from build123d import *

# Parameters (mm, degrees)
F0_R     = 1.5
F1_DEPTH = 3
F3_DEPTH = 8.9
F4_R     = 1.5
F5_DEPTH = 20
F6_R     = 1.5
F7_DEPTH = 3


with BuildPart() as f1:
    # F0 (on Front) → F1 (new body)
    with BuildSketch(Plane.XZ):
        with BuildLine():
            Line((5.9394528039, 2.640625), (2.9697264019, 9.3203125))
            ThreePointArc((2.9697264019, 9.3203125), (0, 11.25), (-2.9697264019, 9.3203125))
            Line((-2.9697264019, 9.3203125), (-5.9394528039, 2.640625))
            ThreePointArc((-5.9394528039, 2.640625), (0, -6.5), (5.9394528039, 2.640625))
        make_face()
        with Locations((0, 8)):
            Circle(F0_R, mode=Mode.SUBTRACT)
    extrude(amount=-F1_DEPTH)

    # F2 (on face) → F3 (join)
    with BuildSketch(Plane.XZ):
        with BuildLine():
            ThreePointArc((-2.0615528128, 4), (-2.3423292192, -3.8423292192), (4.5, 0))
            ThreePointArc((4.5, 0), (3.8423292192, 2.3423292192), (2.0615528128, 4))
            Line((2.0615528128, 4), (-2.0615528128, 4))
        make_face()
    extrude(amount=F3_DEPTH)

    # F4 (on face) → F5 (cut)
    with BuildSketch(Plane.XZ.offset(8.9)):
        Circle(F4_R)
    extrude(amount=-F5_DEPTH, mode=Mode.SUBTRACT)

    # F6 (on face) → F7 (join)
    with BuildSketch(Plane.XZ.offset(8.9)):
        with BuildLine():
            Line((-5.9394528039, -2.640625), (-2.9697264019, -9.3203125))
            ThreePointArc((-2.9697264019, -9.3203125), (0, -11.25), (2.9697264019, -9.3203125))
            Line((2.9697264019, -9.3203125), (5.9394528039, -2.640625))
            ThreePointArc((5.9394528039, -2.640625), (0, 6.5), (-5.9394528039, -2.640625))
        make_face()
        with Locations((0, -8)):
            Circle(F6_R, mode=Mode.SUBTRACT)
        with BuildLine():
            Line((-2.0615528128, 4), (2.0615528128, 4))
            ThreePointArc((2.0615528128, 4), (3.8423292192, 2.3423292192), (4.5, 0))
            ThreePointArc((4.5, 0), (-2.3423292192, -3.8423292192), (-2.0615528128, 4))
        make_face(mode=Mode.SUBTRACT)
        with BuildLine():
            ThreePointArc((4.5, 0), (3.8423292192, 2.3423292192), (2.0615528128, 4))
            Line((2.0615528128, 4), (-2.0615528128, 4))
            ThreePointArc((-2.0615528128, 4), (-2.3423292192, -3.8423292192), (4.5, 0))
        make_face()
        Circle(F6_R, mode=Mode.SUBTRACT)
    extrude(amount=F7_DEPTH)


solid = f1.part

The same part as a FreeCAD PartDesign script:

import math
import FreeCAD as App
import Part
import Sketcher

V = App.Vector

doc = App.newDocument("Part")
params = doc.addObject("Spreadsheet::Sheet", "Params")
for row, (alias, value) in enumerate([
    ("sketch1_diameter", "3 mm"),
    ("sketch1_radius", "6.5 mm"),
    ("sketch1_radius2", "3.25 mm"),
    ("pad1_length", "3 mm"),
    ("sketch2_radius", "4.5 mm"),
    ("pad2_length", "8.9 mm"),
    ("sketch3_diameter", "3 mm"),
    ("pocket1_length", "20 mm"),
    ("sketch4_diameter", "3 mm"),
    ("sketch4_radius", "6.5 mm"),
    ("sketch4_radius2", "3.25 mm"),
    ("pad3_length", "3 mm"),
], start=1):
    params.set(f"A{row}", alias)
    params.set(f"B{row}", "=" + value)
    params.setAlias(f"B{row}", alias)

body = doc.addObject("PartDesign::Body", "Body")

# Sketch on XZ plane
sketch1 = body.newObject("Sketcher::SketchObject", "Sketch")
sketch1.AttachmentSupport = (doc.getObject("XZ_Plane"), [""])
sketch1.MapMode = "FlatFace"
sketch1.addGeometry(Part.LineSegment(V(5.9, 2.6, 0), V(3, 9.3, 0)), False)
sketch1.addGeometry(Part.ArcOfCircle(Part.Circle(V(0, 8, 0), V(0, 0, 1), 3.2), math.radians(24), math.radians(156)), False)
sketch1.addGeometry(Part.LineSegment(V(-3, 9.3, 0), V(-5.9, 2.6, 0)), False)
sketch1.addGeometry(Part.ArcOfCircle(Part.Circle(V(0, 0, 0), V(0, 0, 1), 6.5), math.radians(156), math.radians(384)), False)
sketch1.addGeometry(Part.Circle(V(0, 8, 0), V(0, 0, 1), 1.5), False)
sketch1.addConstraint(Sketcher.Constraint("Tangent", 0, 2, 1, 1))
sketch1.addConstraint(Sketcher.Constraint("Tangent", 1, 2, 2, 1))
sketch1.addConstraint(Sketcher.Constraint("Tangent", 2, 2, 3, 1))
sketch1.addConstraint(Sketcher.Constraint("Tangent", 3, 2, 0, 1))
sketch1.addConstraint(Sketcher.Constraint("Coincident", 3, 3, -1, 1))
sketch1.addConstraint(Sketcher.Constraint("Coincident", 4, 3, 1, 3))
sketch1.addConstraint(Sketcher.Constraint("PointOnObject", 1, 3, -2))
sketch1.addConstraint(Sketcher.Constraint("Diameter", 4, 3.0))
sketch1.addConstraint(Sketcher.Constraint("Radius", 3, 6.5))
sketch1.addConstraint(Sketcher.Constraint("Radius", 1, 3.25))
sketch1.addConstraint(Sketcher.Constraint("DistanceY", -1, 1, 1, 3, 8.0))
sketch1.setExpression("Constraints[7]", "Params.sketch1_diameter")
sketch1.setExpression("Constraints[8]", "Params.sketch1_radius")
sketch1.setExpression("Constraints[9]", "Params.sketch1_radius2")
pad1 = body.newObject("PartDesign::Pad", "Pad")
pad1.Profile = sketch1
pad1.setExpression("Length", "Params.pad1_length")
pad1.Reversed = True

# Sketch on XZ plane
sketch2 = body.newObject("Sketcher::SketchObject", "Sketch001")
sketch2.AttachmentSupport = (doc.getObject("XZ_Plane"), [""])
sketch2.MapMode = "FlatFace"
sketch2.addGeometry(Part.ArcOfCircle(Part.Circle(V(0, 0, 0), V(0, 0, 1), 4.5), math.radians(117), math.radians(360)), False)
sketch2.addGeometry(Part.ArcOfCircle(Part.Circle(V(0, 0, 0), V(0, 0, 1), 4.5), math.radians(0), math.radians(63)), False)
sketch2.addGeometry(Part.LineSegment(V(2.1, 4, 0), V(-2.1, 4, 0)), False)
sketch2.addConstraint(Sketcher.Constraint("Tangent", 0, 2, 1, 1))
sketch2.addConstraint(Sketcher.Constraint("Coincident", 1, 2, 2, 1))
sketch2.addConstraint(Sketcher.Constraint("Coincident", 2, 2, 0, 1))
sketch2.addConstraint(Sketcher.Constraint("Horizontal", 2))
sketch2.addConstraint(Sketcher.Constraint("Coincident", 0, 3, -1, 1))
sketch2.addConstraint(Sketcher.Constraint("Equal", 0, 1))
sketch2.addConstraint(Sketcher.Constraint("PointOnObject", 0, 2, -1))
sketch2.addConstraint(Sketcher.Constraint("Radius", 0, 4.5))
sketch2.addConstraint(Sketcher.Constraint("DistanceY", -1, 1, 1, 2, 4.0))
sketch2.setExpression("Constraints[7]", "Params.sketch2_radius")
pad2 = body.newObject("PartDesign::Pad", "Pad001")
pad2.Profile = sketch2
pad2.setExpression("Length", "Params.pad2_length")

# Sketch on XZ plane
sketch3 = body.newObject("Sketcher::SketchObject", "Sketch002")
sketch3.AttachmentSupport = (doc.getObject("XZ_Plane"), [""])
sketch3.MapMode = "FlatFace"
sketch3.AttachmentOffset = App.Placement(V(0, 0, 8.9), App.Rotation())
sketch3.addGeometry(Part.Circle(V(0, 0, 0), V(0, 0, 1), 1.5), False)
sketch3.addConstraint(Sketcher.Constraint("Coincident", 0, 3, -1, 1))
sketch3.addConstraint(Sketcher.Constraint("Diameter", 0, 3.0))
sketch3.setExpression("Constraints[1]", "Params.sketch3_diameter")
pocket1 = body.newObject("PartDesign::Pocket", "Pocket")
pocket1.Profile = sketch3
pocket1.setExpression("Length", "Params.pocket1_length")

# Sketch on XZ plane
sketch4 = body.newObject("Sketcher::SketchObject", "Sketch003")
sketch4.AttachmentSupport = (doc.getObject("XZ_Plane"), [""])
sketch4.MapMode = "FlatFace"
sketch4.AttachmentOffset = App.Placement(V(0, 0, 8.9), App.Rotation())
sketch4.addGeometry(Part.LineSegment(V(-5.9, -2.6, 0), V(-3, -9.3, 0)), False)
sketch4.addGeometry(Part.ArcOfCircle(Part.Circle(V(0, -8, 0), V(0, 0, 1), 3.2), math.radians(-156), math.radians(-24)), False)
sketch4.addGeometry(Part.LineSegment(V(3, -9.3, 0), V(5.9, -2.6, 0)), False)
sketch4.addGeometry(Part.ArcOfCircle(Part.Circle(V(0, 0, 0), V(0, 0, 1), 6.5), math.radians(-24), math.radians(204)), False)
sketch4.addGeometry(Part.Circle(V(0, -8, 0), V(0, 0, 1), 1.5), False)
sketch4.addGeometry(Part.Circle(V(0, 0, 0), V(0, 0, 1), 1.5), False)
sketch4.addConstraint(Sketcher.Constraint("Tangent", 0, 2, 1, 1))
sketch4.addConstraint(Sketcher.Constraint("Tangent", 1, 2, 2, 1))
sketch4.addConstraint(Sketcher.Constraint("Tangent", 2, 2, 3, 1))
sketch4.addConstraint(Sketcher.Constraint("Tangent", 3, 2, 0, 1))
sketch4.addConstraint(Sketcher.Constraint("Coincident", 3, 3, -1, 1))
sketch4.addConstraint(Sketcher.Constraint("Coincident", 5, 3, -1, 1))
sketch4.addConstraint(Sketcher.Constraint("Coincident", 4, 3, 1, 3))
sketch4.addConstraint(Sketcher.Constraint("Equal", 4, 5))
sketch4.addConstraint(Sketcher.Constraint("PointOnObject", 1, 3, -2))
sketch4.addConstraint(Sketcher.Constraint("Diameter", 4, 3.0))
sketch4.addConstraint(Sketcher.Constraint("Radius", 3, 6.5))
sketch4.addConstraint(Sketcher.Constraint("Radius", 1, 3.25))
sketch4.addConstraint(Sketcher.Constraint("DistanceY", 1, 3, -1, 1, 8.0))
sketch4.setExpression("Constraints[9]", "Params.sketch4_diameter")
sketch4.setExpression("Constraints[10]", "Params.sketch4_radius")
sketch4.setExpression("Constraints[11]", "Params.sketch4_radius2")
pad3 = body.newObject("PartDesign::Pad", "Pad002")
pad3.Profile = sketch4
pad3.setExpression("Length", "Params.pad3_length")

doc.recompute()
